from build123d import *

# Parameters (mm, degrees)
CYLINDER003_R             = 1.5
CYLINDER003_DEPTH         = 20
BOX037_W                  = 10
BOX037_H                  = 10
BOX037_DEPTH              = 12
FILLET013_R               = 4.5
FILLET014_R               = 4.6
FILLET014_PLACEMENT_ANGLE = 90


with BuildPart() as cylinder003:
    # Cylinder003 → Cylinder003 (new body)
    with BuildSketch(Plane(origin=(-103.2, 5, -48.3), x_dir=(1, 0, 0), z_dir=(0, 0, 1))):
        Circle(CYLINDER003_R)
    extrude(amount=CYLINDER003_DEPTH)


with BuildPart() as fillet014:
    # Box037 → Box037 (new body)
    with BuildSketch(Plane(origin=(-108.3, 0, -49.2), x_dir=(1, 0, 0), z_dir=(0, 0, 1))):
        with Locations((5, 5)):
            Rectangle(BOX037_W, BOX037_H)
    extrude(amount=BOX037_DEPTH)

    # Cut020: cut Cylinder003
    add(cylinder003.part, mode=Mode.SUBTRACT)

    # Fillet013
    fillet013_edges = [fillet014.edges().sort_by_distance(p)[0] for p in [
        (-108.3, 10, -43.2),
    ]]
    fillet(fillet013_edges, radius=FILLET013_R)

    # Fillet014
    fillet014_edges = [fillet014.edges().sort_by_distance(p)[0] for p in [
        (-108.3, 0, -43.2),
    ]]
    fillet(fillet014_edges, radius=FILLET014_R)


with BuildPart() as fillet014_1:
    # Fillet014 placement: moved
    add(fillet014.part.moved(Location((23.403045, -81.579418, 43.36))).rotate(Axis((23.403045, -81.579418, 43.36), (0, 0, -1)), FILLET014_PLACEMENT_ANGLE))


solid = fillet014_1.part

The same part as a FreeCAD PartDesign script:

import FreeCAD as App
import Part
import Sketcher
from FreeCAD import Vector


def edges_at(feature, points):
    """Names of the edges that pass closest to the given points."""
    edges = feature.Shape.Edges
    near = lambda p: min(range(len(edges)), key=lambda i: edges[i].distToShape(Part.Vertex(*p))[0])
    return sorted({f"Edge{near(p) + 1}" for p in points})

doc = App.newDocument("Part")
body = doc.addObject("PartDesign::Body", "Body")

sketch1 = body.newObject("Sketcher::SketchObject", "Sketch")
sketch1.AttachmentSupport = (doc.getObject("XY_Plane"), [""])
sketch1.MapMode = "FlatFace"
sketch1.AttachmentOffset = App.Placement(Vector(0, 0, -48.3), App.Rotation())
sketch1.addGeometry(Part.Circle(Vector(-103.2, 5, 0), Vector(0, 0, 1), 1.5), False)
sketch1.addConstraint([
    Sketcher.Constraint("Diameter", 0, 3.0),
    Sketcher.Constraint("DistanceY", -1, 1, 0, 3, 5.0),
    Sketcher.Constraint("DistanceX", 0, 3, -1, 1, 103.2),
])
pad1 = body.newObject("PartDesign::Pad", "Pad")
pad1.Profile = sketch1
pad1.Length = 20
body2 = doc.addObject("PartDesign::Body", "Body001")

sketch2 = body2.newObject("Sketcher::SketchObject", "Sketch001")
sketch2.AttachmentSupport = (doc.getObject("XY_Plane001"), [""])
sketch2.MapMode = "FlatFace"
sketch2.AttachmentOffset = App.Placement(Vector(0, 0, -49.2), App.Rotation())
sketch2.addGeometry([
    Part.LineSegment(Vector(-108.3, 10, 0), Vector(-108.3, 0, 0)),
    Part.LineSegment(Vector(-108.3, 0, 0), Vector(-98.3, 0, 0)),
    Part.LineSegment(Vector(-98.3, 0, 0), Vector(-98.3, 10, 0)),
    Part.LineSegment(Vector(-98.3, 10, 0), Vector(-108.3, 10, 0)),
], False)
sketch2.addConstraint([
    Sketcher.Constraint("Coincident", 0, 2, 1, 1),
    Sketcher.Constraint("Coincident", 1, 2, 2, 1),
    Sketcher.Constraint("Coincident", 2, 2, 3, 1),
    Sketcher.Constraint("Coincident", 3, 2, 0, 1),
    Sketcher.Constraint("Vertical", 0),
    Sketcher.Constraint("Horizontal", 1),
    Sketcher.Constraint("Vertical", 2),
    Sketcher.Constraint("Horizontal", 3),
    Sketcher.Constraint("PointOnObject", 0, 2, -1),
    Sketcher.Constraint("Equal", 3, 0),
    Sketcher.Constraint("DistanceX", 1, 1, 1, 2, 10.0),
    Sketcher.Constraint("DistanceX", 0, 2, -1, 1, 108.3),
])
pad2 = body2.newObject("PartDesign::Pad", "Pad001")
pad2.Profile = sketch2
pad2.Length = 12
doc.recompute()

boolean = body2.newObject("PartDesign::Boolean", "Boolean")
boolean.Type = "Cut"
boolean.addObjects([body])
doc.recompute()

fillet = body2.newObject("PartDesign::Fillet", "Fillet")
fillet.Base = (boolean, edges_at(boolean, [(-108.3, 10, -43.2)]))
fillet.Radius = 4.5
doc.recompute()

fillet2 = body2.newObject("PartDesign::Fillet", "Fillet001")
fillet2.Base = (fillet, edges_at(fillet, [(-108.3, 0, -43.2)]))
fillet2.Radius = 4.6
body3 = doc.addObject("PartDesign::Body", "Body002")
doc.recompute()

body2.Placement = App.Placement(Vector(23.403045, -81.579418, 43.36), App.Rotation(Vector(0, 0, -1), 90))
boolean2 = body3.newObject("PartDesign::Boolean", "Boolean001")
boolean2.Type = "Fuse"
boolean2.addObjects([body2])

doc.recompute()
